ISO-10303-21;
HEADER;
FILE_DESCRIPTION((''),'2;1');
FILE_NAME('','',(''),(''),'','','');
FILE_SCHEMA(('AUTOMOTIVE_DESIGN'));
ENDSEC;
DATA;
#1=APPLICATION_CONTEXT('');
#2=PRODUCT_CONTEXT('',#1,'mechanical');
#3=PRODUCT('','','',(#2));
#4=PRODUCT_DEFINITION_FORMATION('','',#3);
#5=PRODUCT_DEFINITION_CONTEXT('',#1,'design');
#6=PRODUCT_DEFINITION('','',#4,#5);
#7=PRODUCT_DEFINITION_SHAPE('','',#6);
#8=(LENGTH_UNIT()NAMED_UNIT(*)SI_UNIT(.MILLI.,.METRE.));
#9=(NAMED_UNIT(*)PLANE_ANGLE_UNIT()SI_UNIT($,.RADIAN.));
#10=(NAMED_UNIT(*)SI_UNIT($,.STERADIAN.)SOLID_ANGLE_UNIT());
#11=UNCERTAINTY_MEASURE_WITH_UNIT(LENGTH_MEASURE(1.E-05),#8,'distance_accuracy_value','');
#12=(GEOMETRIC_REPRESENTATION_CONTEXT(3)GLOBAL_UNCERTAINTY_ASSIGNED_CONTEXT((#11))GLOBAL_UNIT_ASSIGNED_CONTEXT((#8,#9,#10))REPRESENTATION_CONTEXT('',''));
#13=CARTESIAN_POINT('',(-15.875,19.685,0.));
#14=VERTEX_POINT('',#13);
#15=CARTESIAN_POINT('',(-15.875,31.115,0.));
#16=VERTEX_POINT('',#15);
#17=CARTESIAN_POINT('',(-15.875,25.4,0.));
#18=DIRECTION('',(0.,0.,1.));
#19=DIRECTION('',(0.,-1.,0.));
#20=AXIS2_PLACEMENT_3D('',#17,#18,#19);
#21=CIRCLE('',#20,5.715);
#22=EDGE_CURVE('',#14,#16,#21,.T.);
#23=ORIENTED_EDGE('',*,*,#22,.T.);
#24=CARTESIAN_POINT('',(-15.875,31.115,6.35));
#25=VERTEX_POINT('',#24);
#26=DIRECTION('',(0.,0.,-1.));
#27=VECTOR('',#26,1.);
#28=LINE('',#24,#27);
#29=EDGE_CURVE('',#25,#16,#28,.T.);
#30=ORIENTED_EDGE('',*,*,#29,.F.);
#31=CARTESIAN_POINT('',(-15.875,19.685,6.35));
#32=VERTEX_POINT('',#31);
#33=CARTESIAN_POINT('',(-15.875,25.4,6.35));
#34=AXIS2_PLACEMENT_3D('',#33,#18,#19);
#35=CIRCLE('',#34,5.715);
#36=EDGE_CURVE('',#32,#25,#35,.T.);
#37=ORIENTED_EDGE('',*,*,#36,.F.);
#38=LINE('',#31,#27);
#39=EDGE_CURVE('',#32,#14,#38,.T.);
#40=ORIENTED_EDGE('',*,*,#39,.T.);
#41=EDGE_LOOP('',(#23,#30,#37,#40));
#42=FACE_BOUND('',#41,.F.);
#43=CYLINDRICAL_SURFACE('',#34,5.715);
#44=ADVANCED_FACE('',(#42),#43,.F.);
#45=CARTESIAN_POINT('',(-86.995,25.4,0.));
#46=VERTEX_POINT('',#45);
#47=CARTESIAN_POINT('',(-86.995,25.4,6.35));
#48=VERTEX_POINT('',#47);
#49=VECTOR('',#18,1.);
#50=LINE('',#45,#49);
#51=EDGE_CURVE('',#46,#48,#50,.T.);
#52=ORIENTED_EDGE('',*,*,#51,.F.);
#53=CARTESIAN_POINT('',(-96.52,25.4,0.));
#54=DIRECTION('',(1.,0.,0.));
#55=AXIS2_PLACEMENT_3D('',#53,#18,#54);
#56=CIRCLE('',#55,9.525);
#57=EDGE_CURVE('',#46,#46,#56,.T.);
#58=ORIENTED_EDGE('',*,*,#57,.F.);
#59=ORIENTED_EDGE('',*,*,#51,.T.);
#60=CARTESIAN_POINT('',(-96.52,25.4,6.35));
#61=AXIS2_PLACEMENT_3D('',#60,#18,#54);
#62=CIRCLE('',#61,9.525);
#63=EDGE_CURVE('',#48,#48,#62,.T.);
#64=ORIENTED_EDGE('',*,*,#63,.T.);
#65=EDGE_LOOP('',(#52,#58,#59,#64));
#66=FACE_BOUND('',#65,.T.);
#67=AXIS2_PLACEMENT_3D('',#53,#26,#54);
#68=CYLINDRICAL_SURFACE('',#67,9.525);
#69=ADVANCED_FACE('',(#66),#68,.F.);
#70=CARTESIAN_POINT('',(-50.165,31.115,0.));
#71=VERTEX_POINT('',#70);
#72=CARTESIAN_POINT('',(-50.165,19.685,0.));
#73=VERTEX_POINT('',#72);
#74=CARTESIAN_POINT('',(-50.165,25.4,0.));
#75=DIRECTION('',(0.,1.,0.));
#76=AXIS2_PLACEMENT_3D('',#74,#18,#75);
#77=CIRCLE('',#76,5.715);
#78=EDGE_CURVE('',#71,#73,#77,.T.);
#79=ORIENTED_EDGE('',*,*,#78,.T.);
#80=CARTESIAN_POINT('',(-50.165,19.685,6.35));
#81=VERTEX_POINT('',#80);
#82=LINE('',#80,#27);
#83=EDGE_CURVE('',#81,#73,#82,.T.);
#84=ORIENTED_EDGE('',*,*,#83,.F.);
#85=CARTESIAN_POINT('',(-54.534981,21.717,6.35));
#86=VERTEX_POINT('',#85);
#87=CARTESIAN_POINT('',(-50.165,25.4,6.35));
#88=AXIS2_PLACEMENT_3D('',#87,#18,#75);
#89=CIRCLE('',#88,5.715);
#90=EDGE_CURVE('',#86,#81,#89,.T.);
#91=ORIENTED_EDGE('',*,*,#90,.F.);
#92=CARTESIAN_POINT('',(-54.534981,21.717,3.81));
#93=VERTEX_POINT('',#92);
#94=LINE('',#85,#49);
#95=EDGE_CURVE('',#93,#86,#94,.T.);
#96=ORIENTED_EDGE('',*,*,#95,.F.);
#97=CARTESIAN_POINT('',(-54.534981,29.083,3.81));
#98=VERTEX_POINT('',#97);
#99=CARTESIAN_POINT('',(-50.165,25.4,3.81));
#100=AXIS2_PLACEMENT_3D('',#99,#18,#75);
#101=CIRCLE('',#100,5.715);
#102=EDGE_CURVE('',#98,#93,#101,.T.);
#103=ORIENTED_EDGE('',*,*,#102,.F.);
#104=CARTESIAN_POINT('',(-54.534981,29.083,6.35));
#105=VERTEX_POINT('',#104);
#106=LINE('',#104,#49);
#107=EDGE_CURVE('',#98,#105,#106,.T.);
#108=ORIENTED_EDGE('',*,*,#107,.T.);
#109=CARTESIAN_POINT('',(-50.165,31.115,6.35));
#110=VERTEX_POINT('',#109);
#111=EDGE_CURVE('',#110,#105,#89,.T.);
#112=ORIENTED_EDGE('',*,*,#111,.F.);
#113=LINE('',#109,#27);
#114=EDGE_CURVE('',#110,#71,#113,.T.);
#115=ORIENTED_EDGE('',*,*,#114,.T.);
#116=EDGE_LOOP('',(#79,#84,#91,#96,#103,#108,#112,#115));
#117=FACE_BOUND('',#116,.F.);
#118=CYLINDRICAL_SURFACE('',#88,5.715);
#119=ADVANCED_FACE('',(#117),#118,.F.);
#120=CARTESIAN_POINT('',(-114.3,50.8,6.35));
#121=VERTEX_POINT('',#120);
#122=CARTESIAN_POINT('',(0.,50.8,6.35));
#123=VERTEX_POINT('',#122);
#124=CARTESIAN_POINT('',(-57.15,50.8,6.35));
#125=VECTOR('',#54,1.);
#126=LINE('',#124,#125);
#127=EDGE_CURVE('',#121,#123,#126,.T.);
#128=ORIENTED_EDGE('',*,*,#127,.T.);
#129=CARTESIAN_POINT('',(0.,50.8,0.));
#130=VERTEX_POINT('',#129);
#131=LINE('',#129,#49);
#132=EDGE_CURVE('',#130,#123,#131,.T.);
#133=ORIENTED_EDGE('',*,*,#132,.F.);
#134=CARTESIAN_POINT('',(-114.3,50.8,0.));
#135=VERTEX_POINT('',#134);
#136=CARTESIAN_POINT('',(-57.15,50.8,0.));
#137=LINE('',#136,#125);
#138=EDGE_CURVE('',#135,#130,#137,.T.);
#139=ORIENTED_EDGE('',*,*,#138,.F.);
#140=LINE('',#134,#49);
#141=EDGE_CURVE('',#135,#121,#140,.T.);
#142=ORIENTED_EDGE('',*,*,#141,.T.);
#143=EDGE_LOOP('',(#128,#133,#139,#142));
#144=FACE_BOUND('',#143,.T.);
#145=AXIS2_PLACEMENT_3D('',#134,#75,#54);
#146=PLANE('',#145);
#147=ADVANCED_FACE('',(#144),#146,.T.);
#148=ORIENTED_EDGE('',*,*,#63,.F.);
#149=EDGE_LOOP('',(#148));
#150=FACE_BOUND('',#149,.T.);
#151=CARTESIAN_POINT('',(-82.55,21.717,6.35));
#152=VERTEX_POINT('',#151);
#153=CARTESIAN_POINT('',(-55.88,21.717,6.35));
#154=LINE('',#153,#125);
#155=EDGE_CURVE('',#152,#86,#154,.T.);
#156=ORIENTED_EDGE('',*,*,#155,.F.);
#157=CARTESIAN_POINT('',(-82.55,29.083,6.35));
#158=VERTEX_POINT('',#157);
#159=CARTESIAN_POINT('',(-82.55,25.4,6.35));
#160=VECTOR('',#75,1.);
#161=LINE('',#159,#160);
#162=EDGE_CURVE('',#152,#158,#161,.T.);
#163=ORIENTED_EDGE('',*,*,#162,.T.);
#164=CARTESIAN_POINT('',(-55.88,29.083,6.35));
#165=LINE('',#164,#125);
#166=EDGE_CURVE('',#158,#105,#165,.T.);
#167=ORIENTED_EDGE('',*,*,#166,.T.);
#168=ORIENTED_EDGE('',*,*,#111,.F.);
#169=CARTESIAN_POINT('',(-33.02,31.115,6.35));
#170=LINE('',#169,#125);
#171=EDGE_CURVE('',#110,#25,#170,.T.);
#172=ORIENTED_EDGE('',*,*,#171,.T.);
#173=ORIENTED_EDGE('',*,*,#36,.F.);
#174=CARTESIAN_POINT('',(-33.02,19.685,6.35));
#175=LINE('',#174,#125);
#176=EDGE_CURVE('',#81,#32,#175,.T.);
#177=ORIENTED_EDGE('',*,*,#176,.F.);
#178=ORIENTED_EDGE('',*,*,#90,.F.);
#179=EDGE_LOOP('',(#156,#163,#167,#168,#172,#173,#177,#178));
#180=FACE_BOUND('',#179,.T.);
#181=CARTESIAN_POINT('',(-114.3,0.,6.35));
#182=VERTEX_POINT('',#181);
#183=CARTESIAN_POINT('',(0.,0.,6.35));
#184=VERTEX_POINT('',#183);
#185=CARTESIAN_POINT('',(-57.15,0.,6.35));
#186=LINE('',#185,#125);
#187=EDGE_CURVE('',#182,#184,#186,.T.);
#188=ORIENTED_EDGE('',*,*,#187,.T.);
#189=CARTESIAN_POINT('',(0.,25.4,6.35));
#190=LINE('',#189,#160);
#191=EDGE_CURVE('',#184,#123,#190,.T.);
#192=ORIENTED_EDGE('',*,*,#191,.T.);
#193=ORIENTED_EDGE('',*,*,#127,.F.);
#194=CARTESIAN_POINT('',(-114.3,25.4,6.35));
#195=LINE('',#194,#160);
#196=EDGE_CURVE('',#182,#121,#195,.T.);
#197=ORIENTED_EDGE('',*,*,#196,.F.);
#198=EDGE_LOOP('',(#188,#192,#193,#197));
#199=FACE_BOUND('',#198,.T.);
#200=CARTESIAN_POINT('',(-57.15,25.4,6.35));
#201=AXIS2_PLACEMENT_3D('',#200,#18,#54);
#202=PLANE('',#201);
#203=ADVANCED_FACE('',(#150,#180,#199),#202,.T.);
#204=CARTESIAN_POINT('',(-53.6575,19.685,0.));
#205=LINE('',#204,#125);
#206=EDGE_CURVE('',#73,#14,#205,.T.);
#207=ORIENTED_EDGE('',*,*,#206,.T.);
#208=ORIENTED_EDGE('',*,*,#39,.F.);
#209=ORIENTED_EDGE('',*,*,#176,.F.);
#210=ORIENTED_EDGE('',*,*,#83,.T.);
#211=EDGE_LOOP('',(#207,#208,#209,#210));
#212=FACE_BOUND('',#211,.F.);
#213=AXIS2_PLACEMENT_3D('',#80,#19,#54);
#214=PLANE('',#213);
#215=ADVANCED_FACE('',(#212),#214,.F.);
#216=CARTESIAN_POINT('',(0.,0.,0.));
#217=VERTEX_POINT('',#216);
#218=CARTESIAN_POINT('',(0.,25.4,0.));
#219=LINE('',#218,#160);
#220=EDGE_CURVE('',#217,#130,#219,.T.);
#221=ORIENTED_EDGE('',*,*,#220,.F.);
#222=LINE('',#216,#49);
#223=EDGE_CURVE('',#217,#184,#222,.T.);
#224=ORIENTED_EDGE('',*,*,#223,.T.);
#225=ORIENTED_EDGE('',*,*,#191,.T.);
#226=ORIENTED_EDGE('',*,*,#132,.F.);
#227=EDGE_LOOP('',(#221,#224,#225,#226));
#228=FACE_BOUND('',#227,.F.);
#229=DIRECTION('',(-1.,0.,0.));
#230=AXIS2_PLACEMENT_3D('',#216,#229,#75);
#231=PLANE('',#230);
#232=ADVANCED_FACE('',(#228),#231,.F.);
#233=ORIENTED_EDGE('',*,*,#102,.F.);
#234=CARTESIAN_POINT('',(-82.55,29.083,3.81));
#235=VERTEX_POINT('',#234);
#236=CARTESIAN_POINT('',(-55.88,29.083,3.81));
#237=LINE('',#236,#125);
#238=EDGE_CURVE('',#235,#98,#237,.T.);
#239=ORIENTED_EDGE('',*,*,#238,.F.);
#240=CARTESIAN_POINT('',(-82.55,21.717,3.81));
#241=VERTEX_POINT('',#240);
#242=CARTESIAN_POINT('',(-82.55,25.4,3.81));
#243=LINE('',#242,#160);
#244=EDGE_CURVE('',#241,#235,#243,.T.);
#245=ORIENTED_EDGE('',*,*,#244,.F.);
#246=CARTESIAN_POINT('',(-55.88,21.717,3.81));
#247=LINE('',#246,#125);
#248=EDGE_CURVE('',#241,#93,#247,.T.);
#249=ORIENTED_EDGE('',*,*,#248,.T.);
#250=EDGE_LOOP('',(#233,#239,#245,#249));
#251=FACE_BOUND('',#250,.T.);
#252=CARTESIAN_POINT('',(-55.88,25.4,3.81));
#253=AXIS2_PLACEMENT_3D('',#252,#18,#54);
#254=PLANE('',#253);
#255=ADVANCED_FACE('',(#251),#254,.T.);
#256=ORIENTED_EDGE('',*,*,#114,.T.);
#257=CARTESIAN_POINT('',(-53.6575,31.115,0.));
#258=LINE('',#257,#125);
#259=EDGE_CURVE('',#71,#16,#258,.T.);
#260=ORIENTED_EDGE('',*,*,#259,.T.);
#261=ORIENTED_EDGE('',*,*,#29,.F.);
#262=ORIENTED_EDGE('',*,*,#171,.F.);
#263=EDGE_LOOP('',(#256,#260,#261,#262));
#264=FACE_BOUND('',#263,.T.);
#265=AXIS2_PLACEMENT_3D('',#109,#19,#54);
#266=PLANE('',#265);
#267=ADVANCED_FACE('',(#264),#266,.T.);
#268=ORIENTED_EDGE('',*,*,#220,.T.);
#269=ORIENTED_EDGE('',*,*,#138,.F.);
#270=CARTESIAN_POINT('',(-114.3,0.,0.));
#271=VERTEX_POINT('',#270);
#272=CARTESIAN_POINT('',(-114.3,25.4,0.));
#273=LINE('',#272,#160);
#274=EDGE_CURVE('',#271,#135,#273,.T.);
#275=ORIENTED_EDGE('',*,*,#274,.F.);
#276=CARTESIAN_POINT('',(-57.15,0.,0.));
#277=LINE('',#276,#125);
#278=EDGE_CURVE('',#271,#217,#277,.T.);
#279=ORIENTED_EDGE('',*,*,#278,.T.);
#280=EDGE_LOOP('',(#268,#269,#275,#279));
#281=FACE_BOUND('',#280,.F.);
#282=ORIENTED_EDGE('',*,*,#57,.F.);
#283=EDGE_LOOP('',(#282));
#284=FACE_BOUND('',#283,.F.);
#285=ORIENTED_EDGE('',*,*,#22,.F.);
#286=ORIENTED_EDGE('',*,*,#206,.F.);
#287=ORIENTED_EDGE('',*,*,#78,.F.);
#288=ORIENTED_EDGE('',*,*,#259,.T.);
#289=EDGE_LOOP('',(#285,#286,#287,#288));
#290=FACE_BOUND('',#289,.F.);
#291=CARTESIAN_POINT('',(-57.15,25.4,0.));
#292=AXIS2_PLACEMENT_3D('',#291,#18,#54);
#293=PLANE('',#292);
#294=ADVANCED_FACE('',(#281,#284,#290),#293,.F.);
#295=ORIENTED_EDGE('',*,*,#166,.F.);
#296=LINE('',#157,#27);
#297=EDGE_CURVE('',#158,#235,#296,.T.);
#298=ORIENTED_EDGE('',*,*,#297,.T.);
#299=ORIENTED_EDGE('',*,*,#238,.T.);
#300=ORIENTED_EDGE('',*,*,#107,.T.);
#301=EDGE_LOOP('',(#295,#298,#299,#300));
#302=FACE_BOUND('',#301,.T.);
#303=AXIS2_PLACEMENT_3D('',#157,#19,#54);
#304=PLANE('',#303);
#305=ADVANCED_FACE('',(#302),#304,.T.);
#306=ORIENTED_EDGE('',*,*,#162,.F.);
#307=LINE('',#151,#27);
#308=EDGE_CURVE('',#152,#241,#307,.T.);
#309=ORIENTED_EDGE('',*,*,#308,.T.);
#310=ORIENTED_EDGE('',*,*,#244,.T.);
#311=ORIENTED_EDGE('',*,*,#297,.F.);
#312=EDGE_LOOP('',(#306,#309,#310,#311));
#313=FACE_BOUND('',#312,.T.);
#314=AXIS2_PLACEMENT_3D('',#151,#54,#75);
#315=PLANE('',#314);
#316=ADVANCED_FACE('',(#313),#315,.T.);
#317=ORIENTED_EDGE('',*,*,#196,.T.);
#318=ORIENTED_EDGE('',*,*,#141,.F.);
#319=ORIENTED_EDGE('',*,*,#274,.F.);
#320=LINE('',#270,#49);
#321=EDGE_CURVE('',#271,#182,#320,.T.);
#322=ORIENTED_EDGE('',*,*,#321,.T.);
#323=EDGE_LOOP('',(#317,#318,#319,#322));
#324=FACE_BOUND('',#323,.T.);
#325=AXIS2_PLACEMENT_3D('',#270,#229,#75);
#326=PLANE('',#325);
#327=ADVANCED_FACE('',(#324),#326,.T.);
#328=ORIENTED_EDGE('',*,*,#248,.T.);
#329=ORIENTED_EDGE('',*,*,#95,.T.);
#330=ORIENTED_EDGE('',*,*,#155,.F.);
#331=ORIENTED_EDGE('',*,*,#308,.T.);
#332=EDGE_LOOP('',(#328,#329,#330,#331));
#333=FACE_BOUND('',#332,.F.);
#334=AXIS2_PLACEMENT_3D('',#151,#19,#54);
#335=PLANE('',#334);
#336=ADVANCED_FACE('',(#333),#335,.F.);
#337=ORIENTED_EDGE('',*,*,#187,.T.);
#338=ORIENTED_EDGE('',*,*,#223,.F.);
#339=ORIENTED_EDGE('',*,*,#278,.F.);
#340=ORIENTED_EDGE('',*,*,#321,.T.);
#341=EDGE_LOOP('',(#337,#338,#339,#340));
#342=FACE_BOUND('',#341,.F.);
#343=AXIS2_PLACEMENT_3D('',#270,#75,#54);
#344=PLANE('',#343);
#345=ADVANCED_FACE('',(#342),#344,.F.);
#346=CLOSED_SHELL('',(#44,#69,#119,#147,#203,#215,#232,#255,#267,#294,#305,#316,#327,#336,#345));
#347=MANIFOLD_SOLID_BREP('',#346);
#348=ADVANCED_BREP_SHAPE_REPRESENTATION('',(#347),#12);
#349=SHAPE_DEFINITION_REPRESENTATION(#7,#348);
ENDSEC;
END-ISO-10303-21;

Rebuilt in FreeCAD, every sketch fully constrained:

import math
import FreeCAD as App
import Part
import Sketcher
from FreeCAD import Vector
Q = App.Units.Quantity


def add_polygon(sketch, points):
    """Adds a closed chain of lines whose ends are joined by coincident constraints."""
    first, n = sketch.GeometryCount, len(points)
    for a, b in zip(points, points[1:] + points[:1]):
        sketch.addGeometry(Part.LineSegment(App.Vector(*a, 0), App.Vector(*b, 0)), False)
    for i in range(n):
        sketch.addConstraint(Sketcher.Constraint("Coincident", first + i, 2, first + (i + 1) % n, 1))

doc = App.newDocument("Part")
body = doc.addObject("PartDesign::Body", "Body")

sketch1 = body.newObject("Sketcher::SketchObject", "Sketch")
sketch1.AttachmentSupport = (doc.getObject("XY_Plane"), [""])
sketch1.MapMode = "FlatFace"
add_polygon(sketch1, [(-114, 51), (-114, 0), (0, 0), (0, 51)])
sketch1.addGeometry(Part.Circle(Vector(-97, 25, 0), Vector(0, 0, 1), 10), False)
sketch1.addConstraint([
    Sketcher.Constraint("Vertical", 0),
    Sketcher.Constraint("Horizontal", 1),
    Sketcher.Constraint("Vertical", 2),
    Sketcher.Constraint("Horizontal", 3),
    Sketcher.Constraint("Coincident", 1, 2, -1, 1),
    Sketcher.Constraint("Diameter", 4, Q("0.75 in")),
    Sketcher.Constraint("DistanceY", 0, 2, 0, 1, Q("2 in")),
    Sketcher.Constraint("DistanceX", 1, 1, 1, 2, Q("4.5 in")),
    Sketcher.Constraint("DistanceY", -1, 1, 4, 3, Q("1 in")),
    Sketcher.Constraint("DistanceX", 4, 3, -1, 1, Q("3.8 in")),
])
pad1 = body.newObject("PartDesign::Pad", "Pad")
pad1.Profile = sketch1
pad1.Length = Q("0.25 in")

sketch2 = body.newObject("Sketcher::SketchObject", "Sketch001")
sketch2.AttachmentSupport = (doc.getObject("XY_Plane"), [""])
sketch2.MapMode = "FlatFace"
sketch2.AttachmentOffset = App.Placement(Vector(0, 0, 0.25 * 25.4), App.Rotation())
sketch2.addGeometry([
    Part.LineSegment(Vector(-50, 20, 0), Vector(-16, 20, 0)),
    Part.ArcOfCircle(Part.Circle(Vector(-16, 25, 0), Vector(0, 0, 1), 6), math.radians(-90), math.radians(90)),
    Part.LineSegment(Vector(-16, 31, 0), Vector(-50, 31, 0)),
    Part.ArcOfCircle(Part.Circle(Vector(-50, 25, 0), Vector(0, 0, 1), 6), math.radians(90), math.radians(270)),
], False)
sketch2.addConstraint([
    Sketcher.Constraint("Tangent", 0, 2, 1, 1),
    Sketcher.Constraint("Tangent", 1, 2, 2, 1),
    Sketcher.Constraint("Tangent", 2, 2, 3, 1),
    Sketcher.Constraint("Tangent", 3, 2, 0, 1),
    Sketcher.Constraint("Horizontal", 0),
    Sketcher.Constraint("Horizontal", 2),
    Sketcher.Constraint("DistanceY", -1, 1, 1, 3, Q("1 in")),
    Sketcher.Constraint("Radius", 1, Q("0.225 in")),
    Sketcher.Constraint("DistanceX", 0, 1, 0, 2, Q("1.35 in")),
    Sketcher.Constraint("DistanceX", 1, 3, -1, 1, Q("0.625 in")),
])
pocket1 = body.newObject("PartDesign::Pocket", "Pocket")
pocket1.Profile = sketch2
pocket1.Length = Q("1 in")

sketch3 = body.newObject("Sketcher::SketchObject", "Sketch002")
sketch3.AttachmentSupport = (doc.getObject("XY_Plane"), [""])
sketch3.MapMode = "FlatFace"
sketch3.AttachmentOffset = App.Placement(Vector(0, 0, 0.25 * 25.4), App.Rotation())
add_polygon(sketch3, [(-83, 29), (-83, 22), (-29, 22), (-29, 29)])
sketch3.addConstraint([
    Sketcher.Constraint("Vertical", 0),
    Sketcher.Constraint("Horizontal", 1),
    Sketcher.Constraint("Vertical", 2),
    Sketcher.Constraint("Horizontal", 3),
    Sketcher.Constraint("DistanceX", 1, 1, 1, 2, Q("2.1 in")),
    Sketcher.Constraint("DistanceY", 0, 2, 0, 1, Q("0.29 in")),
    Sketcher.Constraint("DistanceX", 0, 2, -1, 1, Q("3.25 in")),
    Sketcher.Constraint("DistanceY", -1, 1, 0, 2, Q("0.855 in")),
])
pocket2 = body.newObject("PartDesign::Pocket", "Pocket001")
pocket2.Profile = sketch3
pocket2.Length = Q("0.1 in")

doc.recompute()
